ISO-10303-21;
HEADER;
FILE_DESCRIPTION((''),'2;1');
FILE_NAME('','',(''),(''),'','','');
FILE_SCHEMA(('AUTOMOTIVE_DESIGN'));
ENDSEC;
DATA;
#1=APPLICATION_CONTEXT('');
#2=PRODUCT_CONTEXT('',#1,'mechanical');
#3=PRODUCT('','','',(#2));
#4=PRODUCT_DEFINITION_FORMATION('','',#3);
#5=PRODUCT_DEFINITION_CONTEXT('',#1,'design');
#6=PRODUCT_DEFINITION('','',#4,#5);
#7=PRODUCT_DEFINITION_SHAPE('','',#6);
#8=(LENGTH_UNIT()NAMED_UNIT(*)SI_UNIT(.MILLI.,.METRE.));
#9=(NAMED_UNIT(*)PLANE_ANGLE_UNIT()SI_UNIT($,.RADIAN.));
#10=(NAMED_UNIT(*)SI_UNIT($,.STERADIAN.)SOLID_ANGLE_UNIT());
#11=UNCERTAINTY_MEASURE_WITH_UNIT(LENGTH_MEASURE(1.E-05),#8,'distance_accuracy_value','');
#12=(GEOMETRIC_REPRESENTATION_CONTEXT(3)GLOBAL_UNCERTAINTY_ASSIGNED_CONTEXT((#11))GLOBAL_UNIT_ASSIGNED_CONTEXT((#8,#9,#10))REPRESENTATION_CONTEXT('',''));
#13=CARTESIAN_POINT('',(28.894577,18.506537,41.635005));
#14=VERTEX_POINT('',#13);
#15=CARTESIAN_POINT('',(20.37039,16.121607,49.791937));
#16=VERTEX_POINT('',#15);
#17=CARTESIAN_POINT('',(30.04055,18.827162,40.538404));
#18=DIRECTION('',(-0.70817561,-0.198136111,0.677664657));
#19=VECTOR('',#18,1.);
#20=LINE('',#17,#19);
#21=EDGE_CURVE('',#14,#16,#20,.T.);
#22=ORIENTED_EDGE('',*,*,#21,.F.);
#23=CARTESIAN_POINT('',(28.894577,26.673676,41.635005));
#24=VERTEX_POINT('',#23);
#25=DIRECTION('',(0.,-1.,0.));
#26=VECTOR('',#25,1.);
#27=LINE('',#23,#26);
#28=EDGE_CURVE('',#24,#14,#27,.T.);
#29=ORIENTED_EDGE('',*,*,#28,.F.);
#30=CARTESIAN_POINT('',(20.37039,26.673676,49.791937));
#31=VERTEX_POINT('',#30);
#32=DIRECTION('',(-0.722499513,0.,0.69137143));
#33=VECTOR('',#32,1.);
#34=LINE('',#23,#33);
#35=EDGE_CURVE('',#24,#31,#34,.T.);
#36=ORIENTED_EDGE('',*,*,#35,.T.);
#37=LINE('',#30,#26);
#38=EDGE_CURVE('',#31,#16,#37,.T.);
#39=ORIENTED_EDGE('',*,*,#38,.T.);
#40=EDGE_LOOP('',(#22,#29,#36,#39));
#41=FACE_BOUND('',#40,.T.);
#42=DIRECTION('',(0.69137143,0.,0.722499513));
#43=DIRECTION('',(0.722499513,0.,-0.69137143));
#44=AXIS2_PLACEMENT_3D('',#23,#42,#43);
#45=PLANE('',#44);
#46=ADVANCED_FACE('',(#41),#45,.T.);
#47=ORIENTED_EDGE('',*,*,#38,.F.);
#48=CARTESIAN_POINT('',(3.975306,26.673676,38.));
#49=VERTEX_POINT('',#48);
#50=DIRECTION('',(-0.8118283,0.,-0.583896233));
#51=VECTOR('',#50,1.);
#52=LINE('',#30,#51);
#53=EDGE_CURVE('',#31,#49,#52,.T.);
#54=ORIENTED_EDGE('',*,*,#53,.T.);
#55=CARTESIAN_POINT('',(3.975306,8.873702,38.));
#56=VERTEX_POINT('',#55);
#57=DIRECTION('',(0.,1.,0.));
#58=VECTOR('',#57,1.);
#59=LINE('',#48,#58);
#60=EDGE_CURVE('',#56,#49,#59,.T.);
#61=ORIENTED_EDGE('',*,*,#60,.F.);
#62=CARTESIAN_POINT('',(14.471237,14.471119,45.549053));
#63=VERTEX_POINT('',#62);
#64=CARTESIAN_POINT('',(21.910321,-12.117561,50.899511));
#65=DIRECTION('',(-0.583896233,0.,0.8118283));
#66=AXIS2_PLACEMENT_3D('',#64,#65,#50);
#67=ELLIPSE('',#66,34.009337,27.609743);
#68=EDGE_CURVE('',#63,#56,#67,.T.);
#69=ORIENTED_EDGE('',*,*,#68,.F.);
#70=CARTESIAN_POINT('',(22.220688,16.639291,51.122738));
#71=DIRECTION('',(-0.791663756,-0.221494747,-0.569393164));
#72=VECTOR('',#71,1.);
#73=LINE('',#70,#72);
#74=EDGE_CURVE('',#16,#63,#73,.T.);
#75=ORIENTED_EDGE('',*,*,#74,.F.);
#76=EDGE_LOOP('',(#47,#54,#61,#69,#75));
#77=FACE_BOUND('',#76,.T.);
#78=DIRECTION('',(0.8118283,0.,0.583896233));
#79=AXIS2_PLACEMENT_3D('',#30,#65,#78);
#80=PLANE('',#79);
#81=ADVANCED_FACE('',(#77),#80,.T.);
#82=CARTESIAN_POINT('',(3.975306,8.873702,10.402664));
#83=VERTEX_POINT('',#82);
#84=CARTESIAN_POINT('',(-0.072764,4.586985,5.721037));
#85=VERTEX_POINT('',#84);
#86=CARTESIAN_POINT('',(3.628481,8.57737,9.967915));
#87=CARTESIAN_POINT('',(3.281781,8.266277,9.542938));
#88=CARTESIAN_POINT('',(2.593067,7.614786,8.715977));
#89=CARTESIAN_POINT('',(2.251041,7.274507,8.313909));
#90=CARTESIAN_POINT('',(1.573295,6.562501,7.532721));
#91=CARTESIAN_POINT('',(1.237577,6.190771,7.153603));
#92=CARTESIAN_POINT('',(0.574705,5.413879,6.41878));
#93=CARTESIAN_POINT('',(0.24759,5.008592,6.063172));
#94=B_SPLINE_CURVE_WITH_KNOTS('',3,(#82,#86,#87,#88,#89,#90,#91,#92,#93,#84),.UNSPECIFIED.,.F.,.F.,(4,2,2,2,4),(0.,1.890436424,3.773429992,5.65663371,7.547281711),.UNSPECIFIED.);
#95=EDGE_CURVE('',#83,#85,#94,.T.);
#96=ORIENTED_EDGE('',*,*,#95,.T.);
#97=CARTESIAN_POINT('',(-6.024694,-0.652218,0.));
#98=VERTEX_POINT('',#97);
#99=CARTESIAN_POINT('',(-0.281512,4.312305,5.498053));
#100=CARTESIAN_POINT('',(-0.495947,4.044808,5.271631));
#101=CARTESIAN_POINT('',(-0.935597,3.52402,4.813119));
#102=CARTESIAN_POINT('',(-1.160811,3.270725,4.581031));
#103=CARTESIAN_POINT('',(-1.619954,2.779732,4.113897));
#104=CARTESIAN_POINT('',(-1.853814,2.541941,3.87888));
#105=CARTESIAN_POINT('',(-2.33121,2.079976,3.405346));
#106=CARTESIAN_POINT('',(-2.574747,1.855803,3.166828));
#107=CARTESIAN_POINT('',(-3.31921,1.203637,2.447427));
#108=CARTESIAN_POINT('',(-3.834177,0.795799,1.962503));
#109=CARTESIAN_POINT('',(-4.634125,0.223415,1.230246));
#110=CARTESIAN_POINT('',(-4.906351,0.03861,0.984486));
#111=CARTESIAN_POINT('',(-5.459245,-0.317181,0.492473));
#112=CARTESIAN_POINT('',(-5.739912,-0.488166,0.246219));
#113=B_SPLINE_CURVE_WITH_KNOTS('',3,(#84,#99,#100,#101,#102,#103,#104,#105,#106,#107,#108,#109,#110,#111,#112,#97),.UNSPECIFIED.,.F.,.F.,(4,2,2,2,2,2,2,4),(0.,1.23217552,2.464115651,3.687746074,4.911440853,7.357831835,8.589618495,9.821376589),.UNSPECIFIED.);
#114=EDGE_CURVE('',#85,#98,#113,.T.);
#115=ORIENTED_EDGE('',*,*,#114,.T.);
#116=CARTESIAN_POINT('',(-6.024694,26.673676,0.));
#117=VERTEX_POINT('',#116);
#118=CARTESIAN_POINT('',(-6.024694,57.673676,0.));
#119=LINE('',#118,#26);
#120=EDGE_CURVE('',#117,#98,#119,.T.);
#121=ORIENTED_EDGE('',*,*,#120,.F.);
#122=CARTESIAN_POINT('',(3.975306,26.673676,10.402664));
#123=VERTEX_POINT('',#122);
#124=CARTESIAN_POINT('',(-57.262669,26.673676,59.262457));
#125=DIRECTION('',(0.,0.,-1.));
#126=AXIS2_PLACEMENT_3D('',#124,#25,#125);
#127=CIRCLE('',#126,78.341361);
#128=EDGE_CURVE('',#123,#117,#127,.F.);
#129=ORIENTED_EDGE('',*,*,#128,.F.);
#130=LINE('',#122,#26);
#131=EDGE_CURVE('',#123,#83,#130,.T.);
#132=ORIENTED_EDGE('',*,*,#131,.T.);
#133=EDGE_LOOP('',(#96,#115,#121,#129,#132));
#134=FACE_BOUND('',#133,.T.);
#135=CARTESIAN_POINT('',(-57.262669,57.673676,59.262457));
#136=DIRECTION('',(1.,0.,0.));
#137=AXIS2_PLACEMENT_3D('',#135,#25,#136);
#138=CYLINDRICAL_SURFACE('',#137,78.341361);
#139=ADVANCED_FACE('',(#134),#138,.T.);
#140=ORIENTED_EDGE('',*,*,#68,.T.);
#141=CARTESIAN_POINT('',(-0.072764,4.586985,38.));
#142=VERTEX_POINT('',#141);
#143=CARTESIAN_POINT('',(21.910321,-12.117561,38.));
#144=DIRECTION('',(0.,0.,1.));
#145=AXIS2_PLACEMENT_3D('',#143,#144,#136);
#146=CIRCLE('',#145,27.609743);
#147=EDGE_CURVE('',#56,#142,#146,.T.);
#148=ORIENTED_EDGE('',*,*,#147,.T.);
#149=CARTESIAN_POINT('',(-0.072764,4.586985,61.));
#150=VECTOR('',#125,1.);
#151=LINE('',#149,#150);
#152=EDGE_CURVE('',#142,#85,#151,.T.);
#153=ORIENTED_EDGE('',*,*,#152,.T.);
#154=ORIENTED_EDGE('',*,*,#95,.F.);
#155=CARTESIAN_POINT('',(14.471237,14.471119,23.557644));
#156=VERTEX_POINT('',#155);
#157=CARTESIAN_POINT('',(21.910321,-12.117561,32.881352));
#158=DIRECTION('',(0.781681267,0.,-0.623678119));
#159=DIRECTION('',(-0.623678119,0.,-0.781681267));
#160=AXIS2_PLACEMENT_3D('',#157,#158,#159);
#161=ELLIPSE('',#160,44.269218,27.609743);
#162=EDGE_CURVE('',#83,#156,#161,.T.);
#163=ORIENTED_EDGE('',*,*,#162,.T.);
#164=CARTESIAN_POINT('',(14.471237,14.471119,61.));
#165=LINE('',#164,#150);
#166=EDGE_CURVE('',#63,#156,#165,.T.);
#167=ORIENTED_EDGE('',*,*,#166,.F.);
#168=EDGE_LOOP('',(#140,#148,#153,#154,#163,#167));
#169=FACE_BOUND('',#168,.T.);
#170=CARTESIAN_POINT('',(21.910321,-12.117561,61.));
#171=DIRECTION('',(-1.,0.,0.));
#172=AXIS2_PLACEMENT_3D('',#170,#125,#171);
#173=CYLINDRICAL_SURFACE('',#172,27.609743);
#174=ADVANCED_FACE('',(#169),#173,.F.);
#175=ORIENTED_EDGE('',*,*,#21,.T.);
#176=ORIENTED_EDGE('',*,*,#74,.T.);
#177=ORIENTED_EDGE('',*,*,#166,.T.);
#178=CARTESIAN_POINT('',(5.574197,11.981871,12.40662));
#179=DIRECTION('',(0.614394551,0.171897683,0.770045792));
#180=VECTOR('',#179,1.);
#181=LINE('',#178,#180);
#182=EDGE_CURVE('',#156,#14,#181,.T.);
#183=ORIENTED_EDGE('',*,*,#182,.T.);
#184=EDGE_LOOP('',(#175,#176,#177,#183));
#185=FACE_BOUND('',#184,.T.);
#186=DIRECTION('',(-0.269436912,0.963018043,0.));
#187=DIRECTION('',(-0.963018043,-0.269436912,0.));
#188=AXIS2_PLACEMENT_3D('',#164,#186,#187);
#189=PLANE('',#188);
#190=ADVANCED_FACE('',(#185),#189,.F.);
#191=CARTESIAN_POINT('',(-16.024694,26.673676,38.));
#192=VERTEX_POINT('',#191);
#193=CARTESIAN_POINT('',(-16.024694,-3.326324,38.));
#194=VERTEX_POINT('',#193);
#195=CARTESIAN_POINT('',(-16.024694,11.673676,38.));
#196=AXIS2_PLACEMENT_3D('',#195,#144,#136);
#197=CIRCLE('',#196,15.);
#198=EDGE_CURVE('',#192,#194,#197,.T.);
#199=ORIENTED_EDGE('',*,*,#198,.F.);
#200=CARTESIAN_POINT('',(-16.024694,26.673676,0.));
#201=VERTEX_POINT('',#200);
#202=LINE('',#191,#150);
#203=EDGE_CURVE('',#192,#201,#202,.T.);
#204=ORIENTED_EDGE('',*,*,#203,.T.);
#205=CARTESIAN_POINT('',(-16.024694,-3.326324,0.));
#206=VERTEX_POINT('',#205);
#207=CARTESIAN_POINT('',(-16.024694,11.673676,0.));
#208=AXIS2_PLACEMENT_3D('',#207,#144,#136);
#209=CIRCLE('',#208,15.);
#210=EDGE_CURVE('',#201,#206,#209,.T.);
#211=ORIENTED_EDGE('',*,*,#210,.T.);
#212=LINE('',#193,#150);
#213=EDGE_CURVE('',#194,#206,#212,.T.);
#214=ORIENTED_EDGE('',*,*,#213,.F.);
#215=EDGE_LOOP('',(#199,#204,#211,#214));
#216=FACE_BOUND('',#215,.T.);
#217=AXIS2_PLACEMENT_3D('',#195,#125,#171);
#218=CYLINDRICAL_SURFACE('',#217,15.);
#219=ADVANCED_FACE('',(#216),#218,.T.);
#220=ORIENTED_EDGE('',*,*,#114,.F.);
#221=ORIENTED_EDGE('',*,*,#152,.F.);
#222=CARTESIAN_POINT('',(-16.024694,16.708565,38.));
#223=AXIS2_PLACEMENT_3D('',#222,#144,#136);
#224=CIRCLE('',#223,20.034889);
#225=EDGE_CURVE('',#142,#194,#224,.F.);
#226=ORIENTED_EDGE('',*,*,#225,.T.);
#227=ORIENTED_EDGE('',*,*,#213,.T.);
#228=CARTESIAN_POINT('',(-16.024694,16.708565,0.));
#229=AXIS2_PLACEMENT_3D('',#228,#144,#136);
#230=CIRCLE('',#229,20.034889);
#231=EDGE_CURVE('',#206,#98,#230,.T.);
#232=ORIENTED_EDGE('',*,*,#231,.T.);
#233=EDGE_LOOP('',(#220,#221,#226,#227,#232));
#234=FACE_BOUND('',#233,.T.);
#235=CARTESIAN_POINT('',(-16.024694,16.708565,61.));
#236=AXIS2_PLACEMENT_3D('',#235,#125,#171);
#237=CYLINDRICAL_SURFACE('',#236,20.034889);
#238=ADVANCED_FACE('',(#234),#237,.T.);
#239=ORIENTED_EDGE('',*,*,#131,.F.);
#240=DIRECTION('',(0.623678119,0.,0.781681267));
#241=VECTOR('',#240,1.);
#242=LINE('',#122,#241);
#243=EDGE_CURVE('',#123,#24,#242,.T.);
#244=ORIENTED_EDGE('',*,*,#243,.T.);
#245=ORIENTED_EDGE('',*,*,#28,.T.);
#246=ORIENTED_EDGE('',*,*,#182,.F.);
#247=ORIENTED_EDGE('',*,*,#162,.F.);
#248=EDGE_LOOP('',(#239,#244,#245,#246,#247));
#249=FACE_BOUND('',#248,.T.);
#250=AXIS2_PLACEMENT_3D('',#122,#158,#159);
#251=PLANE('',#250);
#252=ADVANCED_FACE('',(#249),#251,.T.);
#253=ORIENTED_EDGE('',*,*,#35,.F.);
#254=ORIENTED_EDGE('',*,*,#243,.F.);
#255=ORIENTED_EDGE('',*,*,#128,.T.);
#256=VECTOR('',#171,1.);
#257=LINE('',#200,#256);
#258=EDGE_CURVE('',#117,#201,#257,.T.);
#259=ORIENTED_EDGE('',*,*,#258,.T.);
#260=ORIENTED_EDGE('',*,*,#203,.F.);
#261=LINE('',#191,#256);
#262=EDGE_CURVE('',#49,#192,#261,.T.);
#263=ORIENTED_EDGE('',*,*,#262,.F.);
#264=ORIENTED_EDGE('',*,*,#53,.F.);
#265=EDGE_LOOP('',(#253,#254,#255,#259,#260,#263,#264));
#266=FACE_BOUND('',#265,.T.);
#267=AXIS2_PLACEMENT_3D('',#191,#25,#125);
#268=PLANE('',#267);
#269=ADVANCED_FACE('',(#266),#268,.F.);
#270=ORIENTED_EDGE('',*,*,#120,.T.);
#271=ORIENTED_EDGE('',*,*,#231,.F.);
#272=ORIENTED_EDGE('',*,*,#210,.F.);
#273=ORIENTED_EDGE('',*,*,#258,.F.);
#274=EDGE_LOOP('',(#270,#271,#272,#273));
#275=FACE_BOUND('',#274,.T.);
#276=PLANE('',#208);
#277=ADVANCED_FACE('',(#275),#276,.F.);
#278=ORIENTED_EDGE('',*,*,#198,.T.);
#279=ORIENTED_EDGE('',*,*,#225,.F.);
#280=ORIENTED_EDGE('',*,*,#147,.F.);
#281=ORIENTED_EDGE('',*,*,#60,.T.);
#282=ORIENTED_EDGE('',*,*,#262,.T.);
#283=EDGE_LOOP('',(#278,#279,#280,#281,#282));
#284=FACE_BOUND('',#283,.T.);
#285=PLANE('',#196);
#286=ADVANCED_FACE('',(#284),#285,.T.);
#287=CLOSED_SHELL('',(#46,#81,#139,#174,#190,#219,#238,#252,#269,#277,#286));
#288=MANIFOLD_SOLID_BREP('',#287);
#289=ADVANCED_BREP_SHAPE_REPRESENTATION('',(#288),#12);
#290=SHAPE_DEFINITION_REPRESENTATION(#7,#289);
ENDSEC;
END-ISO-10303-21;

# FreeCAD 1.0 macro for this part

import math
import FreeCAD as App
import Part
import Sketcher

V = App.Vector


def add_polygon(sketch, points):
    """Adds a closed chain of lines whose ends are joined by coincident constraints."""
    first, n = sketch.GeometryCount, len(points)
    for a, b in zip(points, points[1:] + points[:1]):
        sketch.addGeometry(Part.LineSegment(App.Vector(*a, 0), App.Vector(*b, 0)), False)
    for i in range(n):
        sketch.addConstraint(Sketcher.Constraint("Coincident", first + i, 2, first + (i + 1) % n, 1))

doc = App.newDocument("Part")
body = doc.addObject("PartDesign::Body", "Body")

# Sketch on XY plane
sketch1 = body.newObject("Sketcher::SketchObject", "Sketch")
sketch1.AttachmentSupport = (doc.getObject("XY_Plane"), [""])
sketch1.MapMode = "FlatFace"
sketch1.addGeometry([
    Part.LineSegment(V(3.975306, 26.673676, 0), V(-16.024694, 26.673676, 0)),
    Part.ArcOfCircle(Part.Circle(V(-16.024694, 11.673676, 0), V(0, 0, 1), 15), math.radians(90), math.radians(270)),
    Part.LineSegment(V(-16.024694, -3.326324, 0), V(3.975306, -3.326324, 0)),
    Part.LineSegment(V(3.975306, -3.326324, 0), V(3.975306, 26.673676, 0)),
], False)
sketch1.addConstraint([
    Sketcher.Constraint("Tangent", 0, 2, 1, 1),
    Sketcher.Constraint("Tangent", 1, 2, 2, 1),
    Sketcher.Constraint("Coincident", 2, 2, 3, 1),
    Sketcher.Constraint("Coincident", 3, 2, 0, 1),
    Sketcher.Constraint("Horizontal", 0),
    Sketcher.Constraint("Horizontal", 2),
    Sketcher.Constraint("Vertical", 3),
    Sketcher.Constraint("Radius", 1, 15.0),
    Sketcher.Constraint("DistanceX", 0, 2, 0, 1, 20.0),
    Sketcher.Constraint("DistanceX", 1, 3, -1, 1, 16.024694),
    Sketcher.Constraint("DistanceY", -1, 1, 1, 3, 11.673676),
])
pad1 = body.newObject("PartDesign::Pad", "Pad")
pad1.Profile = sketch1
pad1.Length = 38

# Sketch on XZ plane
sketch2 = body.newObject("Sketcher::SketchObject", "Sketch001")
sketch2.AttachmentSupport = (doc.getObject("XZ_Plane"), [""])
sketch2.MapMode = "FlatFace"
sketch2.AttachmentOffset = App.Placement(V(0, 0, 3.326324), App.Rotation())
add_polygon(sketch2, [(3.975306, 38), (3.975306, 10.402664), (28.894577, 41.635005), (20.37039, 49.791937)])  # lines 0-3
sketch2.addConstraint([
    Sketcher.Constraint("Vertical", 0),
    Sketcher.Constraint("DistanceY", -1, 1, 3, 2, 38.0),
    Sketcher.Constraint("Distance", 1, 39.955339),
    Sketcher.Constraint("Distance", 2, 11.79819),
    Sketcher.Constraint("Distance", 3, 20.195261),
    Sketcher.Constraint("DistanceY", 0, 2, 0, 1, 27.597336),
    Sketcher.Constraint("DistanceX", -1, 1, 2, 2, 20.37039),
    Sketcher.Constraint("DistanceX", 0, 2, 1, 2, 24.919271),
])
pad2 = body.newObject("PartDesign::Pad", "Pad001")
pad2.Profile = sketch2
pad2.Length = 30
pad2.Reversed = True

# Sketch on XZ plane
sketch3 = body.newObject("Sketcher::SketchObject", "Sketch002")
sketch3.AttachmentSupport = (doc.getObject("XZ_Plane"), [""])
sketch3.MapMode = "FlatFace"
sketch3.AttachmentOffset = App.Placement(V(0, 0, 3.326324), App.Rotation())
sketch3.addGeometry([
    Part.LineSegment(V(-6.024694, 0, 0), V(8.586429, -30.750559, 0)),
    Part.LineSegment(V(8.586429, -30.750559, 0), V(53.639484, 0, 0)),
    Part.LineSegment(V(53.639484, 0, 0), V(3.975306, 10.402664, 0)),
    Part.ArcOfCircle(Part.Circle(V(-57.262669, 59.262457, 0), V(0, 0, 1), 78.341361), math.radians(-49.153498), math.radians(-38.585231)),
], False)
sketch3.addConstraint([
    Sketcher.Constraint("Coincident", 0, 2, 1, 1),
    Sketcher.Constraint("Coincident", 1, 2, 2, 1),
    Sketcher.Constraint("Coincident", 2, 2, 3, 2),
    Sketcher.Constraint("Coincident", 3, 1, 0, 1),
    Sketcher.Constraint("PointOnObject", 1, 2, -1),
    Sketcher.Constraint("PointOnObject", 3, 1, -1),
    Sketcher.Constraint("DistanceX", 3, 1, 2, 2, 10.0),
    Sketcher.Constraint("Radius", 3, 78.341361),
    Sketcher.Constraint("Distance", 0, 34.045291),
    Sketcher.Constraint("DistanceX", 3, 3, -1, 1, 57.262669),
    Sketcher.Constraint("DistanceX", -1, 1, 0, 2, 8.586429),
    Sketcher.Constraint("DistanceY", 0, 2, -1, 1, 30.750559),
    Sketcher.Constraint("Distance", 1, 54.546995),
])
pocket1 = body.newObject("PartDesign::Pocket", "Pocket")
pocket1.Profile = sketch3
pocket1.Length = 61

# Sketch on XY plane
sketch4 = body.newObject("Sketcher::SketchObject", "Sketch003")
sketch4.AttachmentSupport = (doc.getObject("XY_Plane"), [""])
sketch4.MapMode = "FlatFace"
sketch4.addGeometry([
    Part.LineSegment(V(14.471237, 14.471119, 0), V(28.894577, 18.506537, 0)),  # 0
    Part.LineSegment(V(28.894577, 18.506537, 0), V(57.421554, 26.72583, 0)),  # 1
    Part.LineSegment(V(57.421554, 26.72583, 0), V(3.301257, -44.718261, 0)),  # 2
    Part.LineSegment(V(3.301257, -44.718261, 0), V(-16.024694, -3.326324, 0)),  # 3
    Part.ArcOfCircle(Part.Circle(V(-16.024694, 16.708565, 0), V(0, 0, 1), 20.034889), math.radians(-90), math.radians(-37.230539)),  # 4
    Part.ArcOfCircle(Part.Circle(V(21.910321, -12.117561, 0), V(0, 0, 1), 27.609743), math.radians(105.630763), math.radians(142.769461)),  # 5
], False)
sketch4.addConstraint([
    Sketcher.Constraint("Coincident", 0, 2, 1, 1),
    Sketcher.Constraint("Coincident", 1, 2, 2, 1),
    Sketcher.Constraint("Coincident", 2, 2, 3, 1),
    Sketcher.Constraint("Coincident", 3, 2, 4, 1),
    Sketcher.Constraint("Tangent", 4, 2, 5, 2),
    Sketcher.Constraint("Tangent", 5, 1, 0, 1),
    Sketcher.Constraint("Vertical", 4, 3, 3, 2),
    Sketcher.Constraint("Radius", 4, 20.034889),
    Sketcher.Constraint("Radius", 5, 27.609743),
    Sketcher.Constraint("DistanceX", 4, 2, 5, 1, 14.544002),
    Sketcher.Constraint("DistanceY", 2, 2, 5, 3, 32.6007),
    Sketcher.Constraint("Distance", 1, 29.687459),
    Sketcher.Constraint("Distance", 2, 89.628481),
    Sketcher.Constraint("Distance", 3, 45.68134),
    Sketcher.Constraint("DistanceX", -1, 1, 5, 3, 21.910321),
    Sketcher.Constraint("DistanceY", 5, 3, -1, 1, 12.117561),
    Sketcher.Constraint("DistanceY", -1, 1, 1, 2, 26.72583),
    Sketcher.Constraint("DistanceY", -1, 1, 5, 1, 14.471119),
])
pocket2 = body.newObject("PartDesign::Pocket", "Pocket001")
pocket2.Profile = sketch4
pocket2.Length = 61
pocket2.Reversed = True

doc.recompute()
